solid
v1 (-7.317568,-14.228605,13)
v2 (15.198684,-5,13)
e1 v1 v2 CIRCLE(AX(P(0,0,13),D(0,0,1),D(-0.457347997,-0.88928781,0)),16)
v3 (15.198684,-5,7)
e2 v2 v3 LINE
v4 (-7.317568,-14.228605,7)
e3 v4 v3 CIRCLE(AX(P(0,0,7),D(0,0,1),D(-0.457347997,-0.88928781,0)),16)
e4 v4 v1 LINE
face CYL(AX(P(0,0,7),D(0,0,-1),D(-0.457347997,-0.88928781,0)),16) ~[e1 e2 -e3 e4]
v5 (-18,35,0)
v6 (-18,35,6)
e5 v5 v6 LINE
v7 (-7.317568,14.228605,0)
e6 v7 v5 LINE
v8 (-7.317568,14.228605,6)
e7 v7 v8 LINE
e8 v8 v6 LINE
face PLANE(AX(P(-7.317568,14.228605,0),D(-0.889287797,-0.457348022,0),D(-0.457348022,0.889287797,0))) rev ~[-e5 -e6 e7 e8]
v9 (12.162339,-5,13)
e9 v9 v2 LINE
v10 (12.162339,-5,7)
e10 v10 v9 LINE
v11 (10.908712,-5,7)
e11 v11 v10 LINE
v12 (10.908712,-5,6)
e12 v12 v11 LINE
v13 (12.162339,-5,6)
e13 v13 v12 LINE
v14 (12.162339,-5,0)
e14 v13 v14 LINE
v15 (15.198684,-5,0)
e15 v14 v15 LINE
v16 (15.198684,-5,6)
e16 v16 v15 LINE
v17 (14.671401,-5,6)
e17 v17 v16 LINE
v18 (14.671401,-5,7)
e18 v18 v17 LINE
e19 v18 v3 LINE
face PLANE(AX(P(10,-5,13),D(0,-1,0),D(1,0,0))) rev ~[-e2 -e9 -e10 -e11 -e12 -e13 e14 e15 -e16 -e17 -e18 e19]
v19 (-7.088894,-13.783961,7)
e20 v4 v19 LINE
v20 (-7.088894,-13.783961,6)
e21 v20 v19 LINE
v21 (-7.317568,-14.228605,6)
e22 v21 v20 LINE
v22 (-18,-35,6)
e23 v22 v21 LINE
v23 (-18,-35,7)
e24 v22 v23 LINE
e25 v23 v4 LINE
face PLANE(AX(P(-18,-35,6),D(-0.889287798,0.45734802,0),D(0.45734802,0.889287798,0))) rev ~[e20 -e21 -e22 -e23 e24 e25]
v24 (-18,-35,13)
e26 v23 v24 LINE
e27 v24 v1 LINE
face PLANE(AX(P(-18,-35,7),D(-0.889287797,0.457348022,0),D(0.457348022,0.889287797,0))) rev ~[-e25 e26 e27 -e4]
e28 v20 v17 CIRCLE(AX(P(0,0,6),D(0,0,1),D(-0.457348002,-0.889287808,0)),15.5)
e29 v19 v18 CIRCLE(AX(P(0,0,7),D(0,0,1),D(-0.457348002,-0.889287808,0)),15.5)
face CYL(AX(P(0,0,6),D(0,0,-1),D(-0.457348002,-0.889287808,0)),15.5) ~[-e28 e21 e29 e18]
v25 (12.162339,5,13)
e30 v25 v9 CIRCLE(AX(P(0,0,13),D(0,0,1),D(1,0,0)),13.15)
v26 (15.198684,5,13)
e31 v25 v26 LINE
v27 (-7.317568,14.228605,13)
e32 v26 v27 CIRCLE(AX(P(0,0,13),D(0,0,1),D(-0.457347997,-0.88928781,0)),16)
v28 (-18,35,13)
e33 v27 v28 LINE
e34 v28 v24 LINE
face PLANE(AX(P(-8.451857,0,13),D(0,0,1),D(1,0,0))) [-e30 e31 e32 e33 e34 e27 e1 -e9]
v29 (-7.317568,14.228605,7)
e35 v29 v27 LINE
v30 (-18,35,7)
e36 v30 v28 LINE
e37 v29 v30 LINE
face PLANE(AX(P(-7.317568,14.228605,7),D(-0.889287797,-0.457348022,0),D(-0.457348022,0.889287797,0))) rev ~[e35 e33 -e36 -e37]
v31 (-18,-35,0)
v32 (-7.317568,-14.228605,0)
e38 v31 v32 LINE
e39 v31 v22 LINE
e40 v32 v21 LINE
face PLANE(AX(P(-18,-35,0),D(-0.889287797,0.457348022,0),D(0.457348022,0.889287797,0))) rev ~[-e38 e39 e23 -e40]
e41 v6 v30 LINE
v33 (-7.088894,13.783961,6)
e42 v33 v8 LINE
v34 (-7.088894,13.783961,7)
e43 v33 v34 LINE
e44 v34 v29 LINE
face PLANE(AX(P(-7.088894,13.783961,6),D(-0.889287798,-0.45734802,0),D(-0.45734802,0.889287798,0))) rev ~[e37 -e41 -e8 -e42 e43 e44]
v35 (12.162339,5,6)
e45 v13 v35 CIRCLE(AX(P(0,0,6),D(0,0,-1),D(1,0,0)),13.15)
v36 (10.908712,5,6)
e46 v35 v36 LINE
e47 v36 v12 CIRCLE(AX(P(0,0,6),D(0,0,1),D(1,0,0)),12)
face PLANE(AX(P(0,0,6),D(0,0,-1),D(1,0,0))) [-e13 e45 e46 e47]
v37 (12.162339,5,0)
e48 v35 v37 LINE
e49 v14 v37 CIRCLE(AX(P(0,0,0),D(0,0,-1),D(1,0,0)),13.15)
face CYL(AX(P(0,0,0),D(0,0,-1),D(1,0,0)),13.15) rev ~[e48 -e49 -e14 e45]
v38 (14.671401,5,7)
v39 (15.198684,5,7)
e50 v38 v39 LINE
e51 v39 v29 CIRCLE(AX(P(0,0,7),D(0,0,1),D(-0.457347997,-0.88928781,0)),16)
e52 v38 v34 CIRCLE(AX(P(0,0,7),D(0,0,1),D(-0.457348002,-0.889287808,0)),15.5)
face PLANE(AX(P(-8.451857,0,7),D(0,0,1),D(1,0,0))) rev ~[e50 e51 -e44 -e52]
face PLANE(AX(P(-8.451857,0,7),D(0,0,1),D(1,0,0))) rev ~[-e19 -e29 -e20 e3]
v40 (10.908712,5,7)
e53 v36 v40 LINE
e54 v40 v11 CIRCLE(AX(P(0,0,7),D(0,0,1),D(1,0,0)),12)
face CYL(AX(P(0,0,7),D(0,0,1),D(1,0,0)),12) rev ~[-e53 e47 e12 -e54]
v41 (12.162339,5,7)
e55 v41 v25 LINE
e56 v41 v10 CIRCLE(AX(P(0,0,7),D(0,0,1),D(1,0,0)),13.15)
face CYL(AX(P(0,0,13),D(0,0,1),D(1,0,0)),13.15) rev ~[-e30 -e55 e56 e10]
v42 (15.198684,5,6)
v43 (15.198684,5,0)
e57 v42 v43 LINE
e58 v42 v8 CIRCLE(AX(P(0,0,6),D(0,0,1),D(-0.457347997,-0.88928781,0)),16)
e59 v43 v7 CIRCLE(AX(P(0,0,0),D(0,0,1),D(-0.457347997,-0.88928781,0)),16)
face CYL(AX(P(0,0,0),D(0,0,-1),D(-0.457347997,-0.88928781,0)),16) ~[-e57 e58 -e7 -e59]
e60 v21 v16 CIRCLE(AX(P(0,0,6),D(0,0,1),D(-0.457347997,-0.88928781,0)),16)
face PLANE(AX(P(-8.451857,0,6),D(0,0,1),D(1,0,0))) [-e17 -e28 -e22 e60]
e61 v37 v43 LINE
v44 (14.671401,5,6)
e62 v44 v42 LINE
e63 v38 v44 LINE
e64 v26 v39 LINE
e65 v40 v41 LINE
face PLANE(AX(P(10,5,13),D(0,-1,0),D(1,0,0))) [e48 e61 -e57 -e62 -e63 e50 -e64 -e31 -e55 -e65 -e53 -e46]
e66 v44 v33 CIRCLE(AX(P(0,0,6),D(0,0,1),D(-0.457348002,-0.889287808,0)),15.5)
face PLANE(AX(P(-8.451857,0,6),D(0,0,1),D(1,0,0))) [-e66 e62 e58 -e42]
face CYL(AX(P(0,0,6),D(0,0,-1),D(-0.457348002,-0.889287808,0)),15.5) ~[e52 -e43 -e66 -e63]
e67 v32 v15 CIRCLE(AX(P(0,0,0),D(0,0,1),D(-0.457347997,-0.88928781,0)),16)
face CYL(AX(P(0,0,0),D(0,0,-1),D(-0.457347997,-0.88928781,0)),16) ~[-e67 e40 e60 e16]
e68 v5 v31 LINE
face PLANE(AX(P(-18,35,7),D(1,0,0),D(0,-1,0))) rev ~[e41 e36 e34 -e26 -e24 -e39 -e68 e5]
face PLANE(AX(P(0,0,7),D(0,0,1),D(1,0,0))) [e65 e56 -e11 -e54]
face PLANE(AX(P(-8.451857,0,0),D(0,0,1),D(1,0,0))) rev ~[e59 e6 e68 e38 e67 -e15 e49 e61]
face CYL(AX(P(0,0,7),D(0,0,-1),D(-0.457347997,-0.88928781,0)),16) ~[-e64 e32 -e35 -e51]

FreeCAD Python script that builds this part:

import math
import FreeCAD as App
import Part
import Sketcher
Q = App.Units.Quantity

doc = App.newDocument("Part")
body = doc.addObject("PartDesign::Body", "Body")

# Sketch on XY plane
sketch1 = body.newObject("Sketcher::SketchObject", "Sketch")
sketch1.AttachmentSupport = (doc.getObject("XY_Plane"), [""])
sketch1.MapMode = "FlatFace"
sketch1.addGeometry(Part.LineSegment(App.Vector(-7, 14, 0), App.Vector(-18, 35, 0)), False)
sketch1.addGeometry(Part.LineSegment(App.Vector(-18, 35, 0), App.Vector(-18, -35, 0)), False)
sketch1.addGeometry(Part.LineSegment(App.Vector(-18, -35, 0), App.Vector(-7, -14, 0)), False)
sketch1.addGeometry(Part.ArcOfCircle(Part.Circle(App.Vector(0, 0, 0), App.Vector(0, 0, 1), 16), math.radians(-117), math.radians(117)), False)
sketch1.addConstraint(Sketcher.Constraint("Coincident", 0, 2, 1, 1))
sketch1.addConstraint(Sketcher.Constraint("Coincident", 1, 2, 2, 1))
sketch1.addConstraint(Sketcher.Constraint("Coincident", 2, 2, 3, 1))
sketch1.addConstraint(Sketcher.Constraint("Coincident", 3, 2, 0, 1))
sketch1.addConstraint(Sketcher.Constraint("Vertical", 1))
sketch1.addConstraint(Sketcher.Constraint("Coincident", 3, 3, -1, 1))
sketch1.addConstraint(Sketcher.Constraint("Vertical", 2, 2, 3, 2))
sketch1.addConstraint(Sketcher.Constraint("Equal", 0, 2))
sketch1.addConstraint(Sketcher.Constraint("Radius", 3, Q("16 mm")))
sketch1.addConstraint(Sketcher.Constraint("DistanceY", 1, 2, 1, 1, Q("70 mm")))
sketch1.addConstraint(Sketcher.Constraint("DistanceX", 0, 2, -1, 1, Q("18 mm")))
sketch1.addConstraint(Sketcher.Constraint("DistanceY", 2, 2, 3, 2, Q("28.45721 mm")))
pad1 = body.newObject("PartDesign::Pad", "Pad")
pad1.Profile = sketch1
pad1.Length = 6

# Sketch on XY plane
sketch2 = body.newObject("Sketcher::SketchObject", "Sketch001")
sketch2.AttachmentSupport = (doc.getObject("XY_Plane"), [""])
sketch2.MapMode = "FlatFace"
sketch2.AttachmentOffset = App.Placement(App.Vector(0, 0, 6), App.Rotation())
sketch2.addGeometry(Part.LineSegment(App.Vector(-7, 14, 0), App.Vector(-18, 35, 0)), False)
sketch2.addGeometry(Part.LineSegment(App.Vector(-18, 35, 0), App.Vector(-18, -35, 0)), False)
sketch2.addGeometry(Part.LineSegment(App.Vector(-18, -35, 0), App.Vector(-7, -14, 0)), False)
sketch2.addGeometry(Part.ArcOfCircle(Part.Circle(App.Vector(0, 0, 0), App.Vector(0, 0, 1), 15), math.radians(-117), math.radians(117)), False)
sketch2.addConstraint(Sketcher.Constraint("Coincident", 0, 2, 1, 1))
sketch2.addConstraint(Sketcher.Constraint("Coincident", 1, 2, 2, 1))
sketch2.addConstraint(Sketcher.Constraint("Coincident", 2, 2, 3, 1))
sketch2.addConstraint(Sketcher.Constraint("Coincident", 3, 2, 0, 1))
sketch2.addConstraint(Sketcher.Constraint("Vertical", 1))
sketch2.addConstraint(Sketcher.Constraint("Coincident", 3, 3, -1, 1))
sketch2.addConstraint(Sketcher.Constraint("Vertical", 2, 2, 3, 2))
sketch2.addConstraint(Sketcher.Constraint("Equal", 0, 2))
sketch2.addConstraint(Sketcher.Constraint("Radius", 3, Q("15.5 mm")))
sketch2.addConstraint(Sketcher.Constraint("DistanceY", 1, 2, 1, 1, Q("70 mm")))
sketch2.addConstraint(Sketcher.Constraint("DistanceX", 0, 2, -1, 1, Q("18 mm")))
sketch2.addConstraint(Sketcher.Constraint("DistanceY", 2, 2, -1, 1, Q("13.783961 mm")))
pad2 = body.newObject("PartDesign::Pad", "Pad001")
pad2.Profile = sketch2
pad2.Length = 1

# Sketch on XY plane
sketch3 = body.newObject("Sketcher::SketchObject", "Sketch002")
sketch3.AttachmentSupport = (doc.getObject("XY_Plane"), [""])
sketch3.MapMode = "FlatFace"
sketch3.AttachmentOffset = App.Placement(App.Vector(0, 0, 7), App.Rotation())
sketch3.addGeometry(Part.LineSegment(App.Vector(-7, 14, 0), App.Vector(-18, 35, 0)), False)
sketch3.addGeometry(Part.LineSegment(App.Vector(-18, 35, 0), App.Vector(-18, -35, 0)), False)
sketch3.addGeometry(Part.LineSegment(App.Vector(-18, -35, 0), App.Vector(-7, -14, 0)), False)
sketch3.addGeometry(Part.ArcOfCircle(Part.Circle(App.Vector(0, 0, 0), App.Vector(0, 0, 1), 16), math.radians(-117), math.radians(117)), False)
sketch3.addConstraint(Sketcher.Constraint("Coincident", 0, 2, 1, 1))
sketch3.addConstraint(Sketcher.Constraint("Coincident", 1, 2, 2, 1))
sketch3.addConstraint(Sketcher.Constraint("Coincident", 2, 2, 3, 1))
sketch3.addConstraint(Sketcher.Constraint("Coincident", 3, 2, 0, 1))
sketch3.addConstraint(Sketcher.Constraint("Vertical", 1))
sketch3.addConstraint(Sketcher.Constraint("Coincident", 3, 3, -1, 1))
sketch3.addConstraint(Sketcher.Constraint("Vertical", 2, 2, 3, 2))
sketch3.addConstraint(Sketcher.Constraint("Equal", 0, 2))
sketch3.addConstraint(Sketcher.Constraint("Radius", 3, Q("16 mm")))
sketch3.addConstraint(Sketcher.Constraint("DistanceY", 1, 2, 1, 1, Q("70 mm")))
sketch3.addConstraint(Sketcher.Constraint("DistanceX", 0, 2, -1, 1, Q("18 mm")))
sketch3.addConstraint(Sketcher.Constraint("DistanceY", 2, 2, 3, 2, Q("28.45721 mm")))
pad3 = body.newObject("PartDesign::Pad", "Pad002")
pad3.Profile = sketch3
pad3.Length = 6

# Sketch on XY plane
sketch4 = body.newObject("Sketcher::SketchObject", "Sketch003")
sketch4.AttachmentSupport = (doc.getObject("XY_Plane"), [""])
sketch4.MapMode = "FlatFace"
sketch4.addGeometry(Part.Circle(App.Vector(0, 0, 0), App.Vector(0, 0, 1), 13), False)
sketch4.addConstraint(Sketcher.Constraint("Coincident", 0, 3, -1, 1))
sketch4.addConstraint(Sketcher.Constraint("Diameter", 0, Q("26.3 mm")))
pocket1 = body.newObject("PartDesign::Pocket", "Pocket")
pocket1.Profile = sketch4
pocket1.Length = 6
pocket1.Reversed = True

# Sketch on XY plane
sketch5 = body.newObject("Sketcher::SketchObject", "Sketch004")
sketch5.AttachmentSupport = (doc.getObject("XY_Plane"), [""])
sketch5.MapMode = "FlatFace"
sketch5.AttachmentOffset = App.Placement(App.Vector(0, 0, 13), App.Rotation())
sketch5.addGeometry(Part.Circle(App.Vector(0, 0, 0), App.Vector(0, 0, 1), 13), False)
sketch5.addConstraint(Sketcher.Constraint("Coincident", 0, 3, -1, 1))
sketch5.addConstraint(Sketcher.Constraint("Diameter", 0, Q("26.3 mm")))
pocket2 = body.newObject("PartDesign::Pocket", "Pocket001")
pocket2.Profile = sketch5
pocket2.Length = 6

# Sketch on XY plane
sketch6 = body.newObject("Sketcher::SketchObject", "Sketch005")
sketch6.AttachmentSupport = (doc.getObject("XY_Plane"), [""])
sketch6.MapMode = "FlatFace"
sketch6.AttachmentOffset = App.Placement(App.Vector(0, 0, 7), App.Rotation())
sketch6.addGeometry(Part.Circle(App.Vector(0, 0, 0), App.Vector(0, 0, 1), 12), False)
sketch6.addConstraint(Sketcher.Constraint("Coincident", 0, 3, -1, 1))
sketch6.addConstraint(Sketcher.Constraint("Diameter", 0, Q("24 mm")))
pocket3 = body.newObject("PartDesign::Pocket", "Pocket002")
pocket3.Profile = sketch6
pocket3.Length = 1

# Sketch on XY plane
sketch7 = body.newObject("Sketcher::SketchObject", "Sketch006")
sketch7.AttachmentSupport = (doc.getObject("XY_Plane"), [""])
sketch7.MapMode = "FlatFace"
sketch7.AttachmentOffset = App.Placement(App.Vector(0, 0, 13), App.Rotation())
sketch7.addGeometry(Part.LineSegment(App.Vector(10, 5, 0), App.Vector(10, -5, 0)), False)
sketch7.addGeometry(Part.LineSegment(App.Vector(10, -5, 0), App.Vector(16, -5, 0)), False)
sketch7.addGeometry(Part.LineSegment(App.Vector(16, -5, 0), App.Vector(16, 5, 0)), False)
sketch7.addGeometry(Part.LineSegment(App.Vector(16, 5, 0), App.Vector(10, 5, 0)), False)
sketch7.addConstraint(Sketcher.Constraint("Coincident", 0, 2, 1, 1))
sketch7.addConstraint(Sketcher.Constraint("Coincident", 1, 2, 2, 1))
sketch7.addConstraint(Sketcher.Constraint("Coincident", 2, 2, 3, 1))
sketch7.addConstraint(Sketcher.Constraint("Coincident", 3, 2, 0, 1))
sketch7.addConstraint(Sketcher.Constraint("Vertical", 0))
sketch7.addConstraint(Sketcher.Constraint("Horizontal", 1))
sketch7.addConstraint(Sketcher.Constraint("Vertical", 2))
sketch7.addConstraint(Sketcher.Constraint("Horizontal", 3))
sketch7.addConstraint(Sketcher.Constraint("DistanceX", 1, 1, 1, 2, Q("6 mm")))
sketch7.addConstraint(Sketcher.Constraint("DistanceY", 0, 2, 0, 1, Q("10 mm")))
sketch7.addConstraint(Sketcher.Constraint("DistanceX", -1, 1, 0, 2, Q("10 mm")))
sketch7.addConstraint(Sketcher.Constraint("DistanceY", 0, 2, -1, 1, Q("5 mm")))
pocket4 = body.newObject("PartDesign::Pocket", "Pocket003")
pocket4.Profile = sketch7
pocket4.Length = 13

doc.recompute()
